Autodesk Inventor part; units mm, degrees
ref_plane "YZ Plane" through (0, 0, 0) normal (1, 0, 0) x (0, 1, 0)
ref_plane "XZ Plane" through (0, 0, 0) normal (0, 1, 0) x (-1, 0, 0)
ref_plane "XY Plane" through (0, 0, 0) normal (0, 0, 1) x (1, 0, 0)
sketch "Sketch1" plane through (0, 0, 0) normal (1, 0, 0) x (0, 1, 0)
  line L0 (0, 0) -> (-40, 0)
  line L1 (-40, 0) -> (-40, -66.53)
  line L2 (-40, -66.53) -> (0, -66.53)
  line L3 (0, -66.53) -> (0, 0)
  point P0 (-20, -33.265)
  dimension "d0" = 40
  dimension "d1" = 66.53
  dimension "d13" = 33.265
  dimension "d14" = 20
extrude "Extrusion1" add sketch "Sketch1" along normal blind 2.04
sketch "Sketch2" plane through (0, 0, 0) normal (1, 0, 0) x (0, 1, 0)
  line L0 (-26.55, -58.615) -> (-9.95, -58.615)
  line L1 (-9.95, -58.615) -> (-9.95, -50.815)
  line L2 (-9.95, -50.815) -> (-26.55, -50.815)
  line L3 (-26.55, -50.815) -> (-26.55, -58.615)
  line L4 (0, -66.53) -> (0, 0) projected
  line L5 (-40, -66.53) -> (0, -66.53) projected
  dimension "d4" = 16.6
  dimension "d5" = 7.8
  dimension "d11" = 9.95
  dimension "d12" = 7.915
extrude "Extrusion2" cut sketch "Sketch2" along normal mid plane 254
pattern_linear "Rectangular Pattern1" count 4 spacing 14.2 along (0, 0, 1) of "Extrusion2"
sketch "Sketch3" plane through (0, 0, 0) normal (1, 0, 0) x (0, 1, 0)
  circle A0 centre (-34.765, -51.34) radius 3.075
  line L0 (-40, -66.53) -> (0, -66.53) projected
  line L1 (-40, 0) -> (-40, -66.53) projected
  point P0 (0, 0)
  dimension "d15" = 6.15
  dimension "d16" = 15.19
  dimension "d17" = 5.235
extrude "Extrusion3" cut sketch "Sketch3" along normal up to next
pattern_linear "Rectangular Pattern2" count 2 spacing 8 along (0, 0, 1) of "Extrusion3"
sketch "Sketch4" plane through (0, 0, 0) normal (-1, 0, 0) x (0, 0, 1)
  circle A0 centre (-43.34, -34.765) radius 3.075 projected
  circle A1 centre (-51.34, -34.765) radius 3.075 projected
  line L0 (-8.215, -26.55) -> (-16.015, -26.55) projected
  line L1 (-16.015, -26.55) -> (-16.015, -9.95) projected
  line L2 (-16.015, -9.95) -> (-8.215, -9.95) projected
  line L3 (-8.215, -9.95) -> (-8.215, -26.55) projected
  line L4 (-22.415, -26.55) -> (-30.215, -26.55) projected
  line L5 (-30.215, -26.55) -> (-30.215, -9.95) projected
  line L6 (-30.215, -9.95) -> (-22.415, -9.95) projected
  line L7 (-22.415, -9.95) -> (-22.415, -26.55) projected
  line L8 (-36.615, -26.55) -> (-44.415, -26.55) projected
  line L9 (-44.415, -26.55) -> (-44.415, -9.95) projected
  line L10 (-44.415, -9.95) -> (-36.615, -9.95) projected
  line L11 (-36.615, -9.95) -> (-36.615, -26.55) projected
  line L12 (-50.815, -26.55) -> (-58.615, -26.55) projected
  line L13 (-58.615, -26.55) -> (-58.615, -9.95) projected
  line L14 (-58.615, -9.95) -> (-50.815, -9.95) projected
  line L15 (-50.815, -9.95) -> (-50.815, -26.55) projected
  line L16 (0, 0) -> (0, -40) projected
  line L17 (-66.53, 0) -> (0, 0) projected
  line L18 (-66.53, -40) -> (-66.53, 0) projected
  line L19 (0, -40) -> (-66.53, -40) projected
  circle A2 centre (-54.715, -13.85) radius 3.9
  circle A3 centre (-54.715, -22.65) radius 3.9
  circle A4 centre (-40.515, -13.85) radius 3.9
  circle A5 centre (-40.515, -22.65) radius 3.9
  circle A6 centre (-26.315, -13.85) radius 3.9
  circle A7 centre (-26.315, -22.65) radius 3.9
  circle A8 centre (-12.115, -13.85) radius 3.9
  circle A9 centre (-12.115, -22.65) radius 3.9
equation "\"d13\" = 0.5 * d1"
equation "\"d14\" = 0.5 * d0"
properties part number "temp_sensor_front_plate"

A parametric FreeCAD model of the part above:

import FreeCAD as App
import Part
import Sketcher
from FreeCAD import Vector

doc = App.newDocument("Part")
body = doc.addObject("PartDesign::Body", "Body")

# Sketch on YZ plane
sketch1 = body.newObject("Sketcher::SketchObject", "Sketch")
sketch1.AttachmentSupport = (doc.getObject("YZ_Plane"), [""])
sketch1.MapMode = "FlatFace"
sketch1.addGeometry([
    Part.LineSegment(Vector(0, -67, 0), Vector(0, 0, 0)),
    Part.LineSegment(Vector(0, 0, 0), Vector(-40, 0, 0)),
    Part.LineSegment(Vector(-40, 0, 0), Vector(-40, -67, 0)),
    Part.LineSegment(Vector(-40, -67, 0), Vector(0, -67, 0)),
], False)
sketch1.addConstraint([
    Sketcher.Constraint("Coincident", 0, 2, 1, 1),
    Sketcher.Constraint("Coincident", 1, 2, 2, 1),
    Sketcher.Constraint("Coincident", 2, 2, 3, 1),
    Sketcher.Constraint("Coincident", 3, 2, 0, 1),
    Sketcher.Constraint("Vertical", 0),
    Sketcher.Constraint("Horizontal", 1),
    Sketcher.Constraint("Vertical", 2),
    Sketcher.Constraint("Horizontal", 3),
    Sketcher.Constraint("Coincident", 0, 2, -1, 1),
    Sketcher.Constraint("DistanceX", 1, 2, 1, 1, 40.0),
    Sketcher.Constraint("DistanceY", 0, 1, 0, 2, 66.53),
])
pad1 = body.newObject("PartDesign::Pad", "Pad")
pad1.Profile = sketch1
pad1.Length = 2.04

# Sketch on YZ plane
sketch2 = body.newObject("Sketcher::SketchObject", "Sketch001")
sketch2.AttachmentSupport = (doc.getObject("YZ_Plane"), [""])
sketch2.MapMode = "FlatFace"
sketch2.addGeometry([
    Part.LineSegment(Vector(-27, -51, 0), Vector(-27, -59, 0)),
    Part.LineSegment(Vector(-27, -59, 0), Vector(-10, -59, 0)),
    Part.LineSegment(Vector(-10, -59, 0), Vector(-10, -51, 0)),
    Part.LineSegment(Vector(-10, -51, 0), Vector(-27, -51, 0)),
], False)
sketch2.addConstraint([
    Sketcher.Constraint("Coincident", 0, 2, 1, 1),
    Sketcher.Constraint("Coincident", 1, 2, 2, 1),
    Sketcher.Constraint("Coincident", 2, 2, 3, 1),
    Sketcher.Constraint("Coincident", 3, 2, 0, 1),
    Sketcher.Constraint("Vertical", 0),
    Sketcher.Constraint("Horizontal", 1),
    Sketcher.Constraint("Vertical", 2),
    Sketcher.Constraint("Horizontal", 3),
    Sketcher.Constraint("DistanceX", 1, 1, 1, 2, 16.6),
    Sketcher.Constraint("DistanceY", 0, 2, 0, 1, 7.8),
    Sketcher.Constraint("DistanceX", 1, 2, -1, 1, 9.95),
    Sketcher.Constraint("DistanceY", 0, 2, -1, 1, 58.615),
])
pocket1 = body.newObject("PartDesign::Pocket", "Pocket")
pocket1.Profile = sketch2
pocket1.Length = 254
pocket1.Midplane = True
doc.recompute()

linearpattern = body.newObject("PartDesign::LinearPattern", "LinearPattern")
linearpattern.Originals = [pocket1]
linearpattern.Direction = (doc.getObject("Z_Axis"), [""])
linearpattern.Mode = "offset"
linearpattern.Offset = 14.2
linearpattern.Occurrences = 4
body.Tip = linearpattern

# Sketch on YZ plane
sketch3 = body.newObject("Sketcher::SketchObject", "Sketch002")
sketch3.AttachmentSupport = (doc.getObject("YZ_Plane"), [""])
sketch3.MapMode = "FlatFace"
sketch3.addGeometry(Part.Circle(Vector(-34.8, -51.3, 0), Vector(0, 0, 1), 3.1), False)
sketch3.addConstraint([
    Sketcher.Constraint("Diameter", 0, 6.15),
    Sketcher.Constraint("DistanceY", 0, 3, -1, 1, 51.34),
    Sketcher.Constraint("DistanceX", 0, 3, -1, 1, 34.765),
])
pocket2 = body.newObject("PartDesign::Pocket", "Pocket001")
pocket2.Profile = sketch3
pocket2.Type = "UpToFirst"
pocket2.Reversed = True
doc.recompute()

linearpattern2 = body.newObject("PartDesign::LinearPattern", "LinearPattern001")
linearpattern2.Originals = [pocket2]
linearpattern2.Direction = (doc.getObject("Z_Axis"), [""])
linearpattern2.Mode = "offset"
linearpattern2.Offset = 8
linearpattern2.Occurrences = 2
body.Tip = linearpattern2

doc.recompute()
